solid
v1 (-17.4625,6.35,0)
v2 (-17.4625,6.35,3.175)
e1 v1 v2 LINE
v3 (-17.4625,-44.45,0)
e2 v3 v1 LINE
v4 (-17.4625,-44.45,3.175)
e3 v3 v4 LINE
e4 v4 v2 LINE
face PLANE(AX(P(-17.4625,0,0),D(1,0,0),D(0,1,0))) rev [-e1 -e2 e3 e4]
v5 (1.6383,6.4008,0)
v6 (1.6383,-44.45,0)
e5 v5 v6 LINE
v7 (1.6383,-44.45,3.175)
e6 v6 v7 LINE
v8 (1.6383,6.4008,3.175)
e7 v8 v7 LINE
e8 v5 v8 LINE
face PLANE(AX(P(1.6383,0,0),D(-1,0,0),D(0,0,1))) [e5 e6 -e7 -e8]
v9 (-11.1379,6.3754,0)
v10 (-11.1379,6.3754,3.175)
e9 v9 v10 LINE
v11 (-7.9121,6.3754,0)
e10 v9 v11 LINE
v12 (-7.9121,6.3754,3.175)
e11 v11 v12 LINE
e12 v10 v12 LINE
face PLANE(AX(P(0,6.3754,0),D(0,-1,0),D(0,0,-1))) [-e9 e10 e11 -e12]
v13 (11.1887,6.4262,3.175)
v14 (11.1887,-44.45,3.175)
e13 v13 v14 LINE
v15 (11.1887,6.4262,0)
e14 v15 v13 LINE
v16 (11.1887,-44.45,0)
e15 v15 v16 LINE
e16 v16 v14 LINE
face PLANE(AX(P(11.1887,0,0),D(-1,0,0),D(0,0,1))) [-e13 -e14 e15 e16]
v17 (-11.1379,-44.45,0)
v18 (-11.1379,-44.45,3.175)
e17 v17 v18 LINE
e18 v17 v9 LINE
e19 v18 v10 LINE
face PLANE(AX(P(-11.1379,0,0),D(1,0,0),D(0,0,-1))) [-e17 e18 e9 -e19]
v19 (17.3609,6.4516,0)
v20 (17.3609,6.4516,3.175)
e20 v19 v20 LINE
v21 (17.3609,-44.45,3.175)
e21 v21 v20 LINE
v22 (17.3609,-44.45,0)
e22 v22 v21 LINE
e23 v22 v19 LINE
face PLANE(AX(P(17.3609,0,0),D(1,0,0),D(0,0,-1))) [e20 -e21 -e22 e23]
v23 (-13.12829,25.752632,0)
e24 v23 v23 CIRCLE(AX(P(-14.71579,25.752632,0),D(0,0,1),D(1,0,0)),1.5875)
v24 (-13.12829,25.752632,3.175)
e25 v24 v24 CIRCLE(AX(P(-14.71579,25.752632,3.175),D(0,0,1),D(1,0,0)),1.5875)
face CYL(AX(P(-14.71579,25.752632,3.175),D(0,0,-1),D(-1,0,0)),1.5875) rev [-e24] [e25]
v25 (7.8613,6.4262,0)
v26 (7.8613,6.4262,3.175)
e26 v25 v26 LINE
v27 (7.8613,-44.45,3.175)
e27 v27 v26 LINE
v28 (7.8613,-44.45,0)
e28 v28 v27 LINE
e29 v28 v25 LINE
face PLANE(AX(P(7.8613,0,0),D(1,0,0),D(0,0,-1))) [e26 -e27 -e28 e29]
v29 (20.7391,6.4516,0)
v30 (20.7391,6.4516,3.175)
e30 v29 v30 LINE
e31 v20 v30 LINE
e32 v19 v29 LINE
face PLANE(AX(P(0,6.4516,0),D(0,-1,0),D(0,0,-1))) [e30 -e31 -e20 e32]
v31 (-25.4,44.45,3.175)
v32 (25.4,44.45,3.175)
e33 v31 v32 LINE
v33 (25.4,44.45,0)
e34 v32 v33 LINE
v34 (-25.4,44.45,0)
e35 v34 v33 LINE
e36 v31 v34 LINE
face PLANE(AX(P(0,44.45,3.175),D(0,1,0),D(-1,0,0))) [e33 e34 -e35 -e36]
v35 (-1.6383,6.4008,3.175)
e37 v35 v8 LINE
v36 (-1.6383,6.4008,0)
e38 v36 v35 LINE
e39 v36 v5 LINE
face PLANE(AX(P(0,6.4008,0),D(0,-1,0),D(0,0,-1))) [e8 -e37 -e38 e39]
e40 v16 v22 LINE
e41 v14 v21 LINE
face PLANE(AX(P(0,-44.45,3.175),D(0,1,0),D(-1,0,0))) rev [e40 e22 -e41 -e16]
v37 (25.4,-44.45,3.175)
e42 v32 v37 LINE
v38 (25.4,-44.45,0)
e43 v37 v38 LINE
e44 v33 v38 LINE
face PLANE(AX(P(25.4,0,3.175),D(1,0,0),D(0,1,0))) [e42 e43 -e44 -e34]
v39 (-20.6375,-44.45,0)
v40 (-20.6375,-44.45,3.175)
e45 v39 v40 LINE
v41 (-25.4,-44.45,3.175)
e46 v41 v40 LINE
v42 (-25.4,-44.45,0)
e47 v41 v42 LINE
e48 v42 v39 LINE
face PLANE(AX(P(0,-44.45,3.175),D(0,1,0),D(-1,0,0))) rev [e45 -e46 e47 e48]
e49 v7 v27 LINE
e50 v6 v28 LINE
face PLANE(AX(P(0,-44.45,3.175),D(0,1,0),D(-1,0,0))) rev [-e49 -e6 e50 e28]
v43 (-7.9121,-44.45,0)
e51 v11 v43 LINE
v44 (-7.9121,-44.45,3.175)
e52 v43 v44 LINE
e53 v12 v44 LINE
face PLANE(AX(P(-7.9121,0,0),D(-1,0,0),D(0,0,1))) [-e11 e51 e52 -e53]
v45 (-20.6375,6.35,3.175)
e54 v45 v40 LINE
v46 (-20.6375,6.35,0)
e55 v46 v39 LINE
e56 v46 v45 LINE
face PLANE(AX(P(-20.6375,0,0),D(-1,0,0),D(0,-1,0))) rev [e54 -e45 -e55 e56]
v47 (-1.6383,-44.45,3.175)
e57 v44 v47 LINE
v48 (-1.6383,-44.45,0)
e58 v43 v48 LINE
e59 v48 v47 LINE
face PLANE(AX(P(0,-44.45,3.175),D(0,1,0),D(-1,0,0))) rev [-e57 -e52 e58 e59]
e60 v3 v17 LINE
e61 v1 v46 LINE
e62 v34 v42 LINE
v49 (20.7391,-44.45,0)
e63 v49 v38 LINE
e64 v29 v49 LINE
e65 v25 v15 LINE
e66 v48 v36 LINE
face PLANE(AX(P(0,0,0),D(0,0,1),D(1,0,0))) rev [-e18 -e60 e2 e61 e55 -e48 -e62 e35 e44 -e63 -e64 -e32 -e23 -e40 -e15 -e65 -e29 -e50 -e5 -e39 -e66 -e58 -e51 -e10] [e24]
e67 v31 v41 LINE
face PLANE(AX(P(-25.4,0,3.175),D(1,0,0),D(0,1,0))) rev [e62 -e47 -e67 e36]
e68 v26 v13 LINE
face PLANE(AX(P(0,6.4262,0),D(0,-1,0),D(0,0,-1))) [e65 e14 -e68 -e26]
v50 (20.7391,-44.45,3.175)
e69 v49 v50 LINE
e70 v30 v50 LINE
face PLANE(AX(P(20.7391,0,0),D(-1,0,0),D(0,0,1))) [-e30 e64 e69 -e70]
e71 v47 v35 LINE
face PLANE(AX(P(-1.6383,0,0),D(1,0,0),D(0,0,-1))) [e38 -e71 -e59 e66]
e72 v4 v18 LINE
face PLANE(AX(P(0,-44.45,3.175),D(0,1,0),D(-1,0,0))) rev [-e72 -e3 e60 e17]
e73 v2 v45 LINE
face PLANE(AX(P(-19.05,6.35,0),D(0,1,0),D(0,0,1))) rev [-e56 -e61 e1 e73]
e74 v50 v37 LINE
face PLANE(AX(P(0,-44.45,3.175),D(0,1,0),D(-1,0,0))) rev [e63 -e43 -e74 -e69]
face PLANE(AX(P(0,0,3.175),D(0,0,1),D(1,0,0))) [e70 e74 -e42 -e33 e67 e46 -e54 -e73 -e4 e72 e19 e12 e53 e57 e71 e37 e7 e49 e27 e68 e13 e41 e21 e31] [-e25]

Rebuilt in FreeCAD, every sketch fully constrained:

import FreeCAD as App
import Part
import Sketcher

V = App.Vector
Q = App.Units.Quantity


def add_polygon(sketch, points):
    """Adds a closed chain of lines whose ends are joined by coincident constraints."""
    first, n = sketch.GeometryCount, len(points)
    for a, b in zip(points, points[1:] + points[:1]):
        sketch.addGeometry(Part.LineSegment(App.Vector(*a, 0), App.Vector(*b, 0)), False)
    for i in range(n):
        sketch.addConstraint(Sketcher.Constraint("Coincident", first + i, 2, first + (i + 1) % n, 1))

doc = App.newDocument("Part")
body = doc.addObject("PartDesign::Body", "Body")

sketch1 = body.newObject("Sketcher::SketchObject", "Sketch")
sketch1.AttachmentSupport = (doc.getObject("XY_Plane"), [""])
sketch1.MapMode = "FlatFace"
add_polygon(sketch1, [(-25.4, 44.5), (-25.4, -44.5), (25.4, -44.5), (25.4, 44.5)])
sketch1.addGeometry(Part.Circle(V(-14.7, 25.8, 0), V(0, 0, 1), 1.6), False)
sketch1.addConstraint([
    Sketcher.Constraint("Vertical", 0),
    Sketcher.Constraint("Horizontal", 1),
    Sketcher.Constraint("Vertical", 2),
    Sketcher.Constraint("Horizontal", 3),
    Sketcher.Constraint("Symmetric", 0, 2, 2, 2, -1, 1),
    Sketcher.Constraint("DistanceX", 1, 1, 1, 2, Q("2 in")),
    Sketcher.Constraint("Diameter", 4, Q("0.125 in")),
    Sketcher.Constraint("DistanceY", 0, 2, 0, 1, Q("3.5 in")),
    Sketcher.Constraint("DistanceX", 4, 3, -1, 1, 14.71579),
    Sketcher.Constraint("DistanceY", -1, 1, 4, 3, 25.752632),
])
pad1 = body.newObject("PartDesign::Pad", "Pad")
pad1.Profile = sketch1
pad1.Length = Q("0.125 in")

sketch2 = body.newObject("Sketcher::SketchObject", "Sketch001")
sketch2.AttachmentSupport = (doc.getObject("XY_Plane"), [""])
sketch2.MapMode = "FlatFace"
sketch2.AttachmentOffset = App.Placement(V(0, 0, 0.125 * 25.4), App.Rotation())
add_polygon(sketch2, [(-1.6, 6.3), (-1.6, -44.5), (1.6, -44.5), (1.6, 6.3)])
sketch2.addConstraint([
    Sketcher.Constraint("Vertical", 0),
    Sketcher.Constraint("Horizontal", 1),
    Sketcher.Constraint("Vertical", 2),
    Sketcher.Constraint("Horizontal", 3),
    Sketcher.Constraint("DistanceY", 0, 2, 0, 1, Q("2 in")),
    Sketcher.Constraint("DistanceX", 1, 1, 1, 2, Q("0.125 in")),
    Sketcher.Constraint("DistanceY", 0, 2, -1, 1, Q("1.75 in")),
    Sketcher.Constraint("DistanceX", 0, 2, -1, 1, Q("0.0625 in")),
])
pocket1 = body.newObject("PartDesign::Pocket", "Pocket")
pocket1.Profile = sketch2
pocket1.Type = "ThroughAll"
doc.recompute()

linearpattern = body.newObject("PartDesign::LinearPattern", "LinearPattern")
linearpattern.Originals = [pocket1]
linearpattern.Direction = (doc.getObject("X_Axis"), [""])
linearpattern.Mode = "offset"
linearpattern.Offset = Q("0.375 in")
linearpattern.Occurrences = 3
body.Tip = linearpattern
doc.recompute()

linearpattern2 = body.newObject("PartDesign::LinearPattern", "LinearPattern001")
linearpattern2.Originals = [pocket1]
linearpattern2.Direction = (doc.getObject("X_Axis"), [""])
linearpattern2.Mode = "offset"
linearpattern2.Offset = Q("0.375 in")
linearpattern2.Occurrences = 3
linearpattern2.Reversed = True
body.Tip = linearpattern2

sketch3 = body.newObject("Sketcher::SketchObject", "Sketch002")
sketch3.AttachmentSupport = (doc.getObject("XY_Plane"), [""])
sketch3.MapMode = "FlatFace"
sketch3.AttachmentOffset = App.Placement(V(0, 0, 0.125 * 25.4), App.Rotation())
add_polygon(sketch3, [(-11.138, 6.375), (-11.138, -44.45), (-11.113, -44.45), (-11.113, 6.35), (-7.938, 6.35), (-7.938, -44.45), (-7.912, -44.45), (-7.912, 6.375)])
add_polygon(sketch3, [(-1.638, 6.401), (-1.638, -44.45), (-1.587, -44.45), (-1.587, 6.35), (1.587, 6.35), (1.587, -44.45), (1.638, -44.45), (1.638, 6.401)])
add_polygon(sketch3, [(7.861, 6.426), (7.861, -44.45), (7.938, -44.45), (7.938, 6.35), (11.113, 6.35), (11.113, -44.45), (11.189, -44.45), (11.189, 6.426)])
add_polygon(sketch3, [(20.637, -44.45), (20.739, -44.45), (20.739, 6.452), (17.361, 6.452), (17.361, -44.45), (17.462, -44.45), (17.462, 6.35), (20.637, 6.35)])
sketch3.addConstraint([
    Sketcher.Constraint("Vertical", 0),
    Sketcher.Constraint("Horizontal", 1),
    Sketcher.Constraint("Vertical", 2),
    Sketcher.Constraint("Horizontal", 3),
    Sketcher.Constraint("Vertical", 4),
    Sketcher.Constraint("Horizontal", 5),
    Sketcher.Constraint("Vertical", 6),
    Sketcher.Constraint("Horizontal", 7),
    Sketcher.Constraint("Vertical", 8),
    Sketcher.Constraint("Horizontal", 9),
    Sketcher.Constraint("Vertical", 10),
    Sketcher.Constraint("Horizontal", 11),
    Sketcher.Constraint("Vertical", 12),
    Sketcher.Constraint("Horizontal", 13),
    Sketcher.Constraint("Vertical", 14),
    Sketcher.Constraint("Horizontal", 15),
    Sketcher.Constraint("Vertical", 16),
    Sketcher.Constraint("Horizontal", 17),
    Sketcher.Constraint("Vertical", 18),
    Sketcher.Constraint("Horizontal", 19),
    Sketcher.Constraint("Vertical", 20),
    Sketcher.Constraint("Horizontal", 21),
    Sketcher.Constraint("Vertical", 22),
    Sketcher.Constraint("Horizontal", 23),
    Sketcher.Constraint("Horizontal", 24),
    Sketcher.Constraint("Vertical", 25),
    Sketcher.Constraint("Horizontal", 26),
    Sketcher.Constraint("Vertical", 27),
    Sketcher.Constraint("Horizontal", 28),
    Sketcher.Constraint("Vertical", 29),
    Sketcher.Constraint("Horizontal", 30),
    Sketcher.Constraint("Vertical", 31),
    Sketcher.Constraint("Symmetric", 9, 2, 12, 2, -2),
    Sketcher.Constraint("Symmetric", 4, 2, 17, 2, -2),
    Sketcher.Constraint("Symmetric", 2, 2, 19, 2, -2),
    Sketcher.Constraint("Horizontal", 1, 2, 4, 2),
    Sketcher.Constraint("Horizontal", 5, 2, 8, 2),
    Sketcher.Constraint("Horizontal", 3, 2, 10, 2),
    Sketcher.Constraint("Horizontal", 17, 2, 20, 2),
    Sketcher.Constraint("Horizontal", 21, 2, 24, 2),
    Sketcher.Constraint("Horizontal", 24, 2, 27, 2),
    Sketcher.Constraint("Horizontal", 19, 2, 29, 2),
    Sketcher.Constraint("Equal", 1, 5),
    Sketcher.Constraint("Equal", 3, 11),
    Sketcher.Constraint("Equal", 9, 13),
    Sketcher.Constraint("Equal", 17, 21),
    Sketcher.Constraint("Equal", 24, 28),
    Sketcher.Constraint("Equal", 19, 30),
    Sketcher.Constraint("DistanceY", 2, 1, 2, 2, Q("2 in")),
    Sketcher.Constraint("DistanceX", 2, 2, 11, 2, Q("0.5 in")),
    Sketcher.Constraint("DistanceX", 1, 1, 1, 2, Q("0.001 in")),
    Sketcher.Constraint("DistanceX", 3, 1, 3, 2, Q("0.125 in")),
    Sketcher.Constraint("DistanceX", 9, 1, 9, 2, Q("0.002 in")),
    Sketcher.Constraint("DistanceX", 17, 1, 17, 2, Q("0.003 in")),
    Sketcher.Constraint("DistanceX", 24, 1, 24, 2, Q("0.004 in")),
    Sketcher.Constraint("DistanceY", 0, 2, 0, 1, Q("2.001 in")),
    Sketcher.Constraint("DistanceY", 8, 2, 8, 1, Q("2.002 in")),
    Sketcher.Constraint("DistanceY", 16, 2, 16, 1, Q("2.003 in")),
    Sketcher.Constraint("DistanceY", 25, 1, 25, 2, Q("2.004 in")),
    Sketcher.Constraint("DistanceY", 0, 2, -1, 1, Q("1.75 in")),
    Sketcher.Constraint("DistanceX", 20, 2, 28, 2, Q("0.25 in")),
])
pocket2 = body.newObject("PartDesign::Pocket", "Pocket001")
pocket2.Profile = sketch3
pocket2.Type = "ThroughAll"

doc.recompute()
